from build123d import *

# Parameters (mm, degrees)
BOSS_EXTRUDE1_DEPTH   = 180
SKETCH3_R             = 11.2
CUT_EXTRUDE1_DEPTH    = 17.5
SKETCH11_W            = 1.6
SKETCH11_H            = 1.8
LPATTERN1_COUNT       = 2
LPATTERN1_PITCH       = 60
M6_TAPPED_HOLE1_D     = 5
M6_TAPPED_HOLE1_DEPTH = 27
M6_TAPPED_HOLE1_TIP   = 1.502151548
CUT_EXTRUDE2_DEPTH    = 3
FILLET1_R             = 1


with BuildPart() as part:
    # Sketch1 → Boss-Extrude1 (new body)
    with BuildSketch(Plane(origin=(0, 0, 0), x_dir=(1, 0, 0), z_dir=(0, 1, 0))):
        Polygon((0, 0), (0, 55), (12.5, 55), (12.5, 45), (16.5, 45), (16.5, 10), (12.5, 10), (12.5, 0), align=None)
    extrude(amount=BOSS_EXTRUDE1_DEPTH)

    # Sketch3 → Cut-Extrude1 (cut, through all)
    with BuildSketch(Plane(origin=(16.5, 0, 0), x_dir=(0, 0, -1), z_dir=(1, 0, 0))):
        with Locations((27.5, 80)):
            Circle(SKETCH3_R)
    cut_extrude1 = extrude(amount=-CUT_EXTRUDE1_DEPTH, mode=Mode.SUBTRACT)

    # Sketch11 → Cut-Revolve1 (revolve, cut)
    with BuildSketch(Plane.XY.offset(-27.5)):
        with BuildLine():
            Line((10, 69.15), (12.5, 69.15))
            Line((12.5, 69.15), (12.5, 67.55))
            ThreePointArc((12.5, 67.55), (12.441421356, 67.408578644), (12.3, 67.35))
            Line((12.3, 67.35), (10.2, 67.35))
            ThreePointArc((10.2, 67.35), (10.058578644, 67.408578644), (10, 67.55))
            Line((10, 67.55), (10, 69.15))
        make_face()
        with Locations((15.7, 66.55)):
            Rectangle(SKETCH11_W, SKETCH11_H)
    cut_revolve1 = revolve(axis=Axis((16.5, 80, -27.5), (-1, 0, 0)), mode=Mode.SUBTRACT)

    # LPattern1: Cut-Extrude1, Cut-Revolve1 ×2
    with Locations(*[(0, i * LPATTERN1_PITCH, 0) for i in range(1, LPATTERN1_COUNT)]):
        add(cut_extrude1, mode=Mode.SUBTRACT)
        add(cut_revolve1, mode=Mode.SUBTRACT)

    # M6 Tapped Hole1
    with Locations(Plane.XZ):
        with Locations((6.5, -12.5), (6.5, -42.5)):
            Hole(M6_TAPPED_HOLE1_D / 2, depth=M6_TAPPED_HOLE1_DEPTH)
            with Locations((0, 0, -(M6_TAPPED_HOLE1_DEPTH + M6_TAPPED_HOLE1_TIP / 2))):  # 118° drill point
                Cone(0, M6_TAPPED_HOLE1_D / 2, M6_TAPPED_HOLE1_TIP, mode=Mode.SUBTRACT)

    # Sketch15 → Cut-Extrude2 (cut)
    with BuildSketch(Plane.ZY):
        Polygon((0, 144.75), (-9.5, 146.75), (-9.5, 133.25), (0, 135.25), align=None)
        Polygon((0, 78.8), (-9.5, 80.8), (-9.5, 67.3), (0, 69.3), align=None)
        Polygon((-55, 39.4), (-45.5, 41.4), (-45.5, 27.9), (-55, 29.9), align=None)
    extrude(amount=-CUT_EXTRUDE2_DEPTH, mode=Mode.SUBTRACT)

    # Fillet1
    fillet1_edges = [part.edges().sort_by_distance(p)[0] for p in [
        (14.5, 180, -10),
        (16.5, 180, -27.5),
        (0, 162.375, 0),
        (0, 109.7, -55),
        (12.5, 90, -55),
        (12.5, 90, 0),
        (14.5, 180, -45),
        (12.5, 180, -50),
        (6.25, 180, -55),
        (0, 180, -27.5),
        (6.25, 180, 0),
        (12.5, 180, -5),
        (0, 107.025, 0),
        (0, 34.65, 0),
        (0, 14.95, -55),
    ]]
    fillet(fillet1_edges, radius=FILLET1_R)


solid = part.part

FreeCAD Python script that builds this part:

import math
import FreeCAD as App
import Part
import Sketcher
from FreeCAD import Vector
Q = App.Units.Quantity


def edges_at(feature, points):
    """Names of the edges that pass closest to the given points."""
    edges = feature.Shape.Edges
    near = lambda p: min(range(len(edges)), key=lambda i: edges[i].distToShape(Part.Vertex(*p))[0])
    return sorted({f"Edge{near(p) + 1}" for p in points})

doc = App.newDocument("Part")
body = doc.addObject("PartDesign::Body", "Body")

sketch1 = body.newObject("Sketcher::SketchObject", "Sketch")
sketch1.AttachmentSupport = (doc.getObject("XZ_Plane"), [""])
sketch1.MapMode = "FlatFace"
sketch1.addGeometry(Part.LineSegment(Vector(0, -55, 0), Vector(0, 0, 0)), False)
sketch1.addGeometry(Part.LineSegment(Vector(0, 0, 0), Vector(12.5, 0, 0)), False)
sketch1.addGeometry(Part.LineSegment(Vector(12.5, 0, 0), Vector(12.5, -10, 0)), False)
sketch1.addGeometry(Part.LineSegment(Vector(12.5, -10, 0), Vector(16.5, -10, 0)), False)
sketch1.addGeometry(Part.LineSegment(Vector(16.5, -10, 0), Vector(16.5, -45, 0)), False)
sketch1.addGeometry(Part.LineSegment(Vector(16.5, -45, 0), Vector(12.5, -45, 0)), False)
sketch1.addGeometry(Part.LineSegment(Vector(12.5, -45, 0), Vector(12.5, -55, 0)), False)
sketch1.addGeometry(Part.LineSegment(Vector(12.5, -55, 0), Vector(0, -55, 0)), False)
sketch1.addConstraint(Sketcher.Constraint("Coincident", 0, 2, 1, 1))
sketch1.addConstraint(Sketcher.Constraint("Coincident", 1, 2, 2, 1))
sketch1.addConstraint(Sketcher.Constraint("Coincident", 2, 2, 3, 1))
sketch1.addConstraint(Sketcher.Constraint("Coincident", 3, 2, 4, 1))
sketch1.addConstraint(Sketcher.Constraint("Coincident", 4, 2, 5, 1))
sketch1.addConstraint(Sketcher.Constraint("Coincident", 5, 2, 6, 1))
sketch1.addConstraint(Sketcher.Constraint("Coincident", 6, 2, 7, 1))
sketch1.addConstraint(Sketcher.Constraint("Coincident", 7, 2, 0, 1))
sketch1.addConstraint(Sketcher.Constraint("Vertical", 0))
sketch1.addConstraint(Sketcher.Constraint("Horizontal", 1))
sketch1.addConstraint(Sketcher.Constraint("Vertical", 2))
sketch1.addConstraint(Sketcher.Constraint("Horizontal", 3))
sketch1.addConstraint(Sketcher.Constraint("Vertical", 4))
sketch1.addConstraint(Sketcher.Constraint("Horizontal", 5))
sketch1.addConstraint(Sketcher.Constraint("Vertical", 6))
sketch1.addConstraint(Sketcher.Constraint("Horizontal", 7))
sketch1.addConstraint(Sketcher.Constraint("Coincident", 0, 2, -1, 1))
sketch1.addConstraint(Sketcher.Constraint("Vertical", 2, 2, 5, 2))
sketch1.addConstraint(Sketcher.Constraint("Equal", 2, 6))
sketch1.addConstraint(Sketcher.Constraint("DistanceX", 3, 1, 3, 2, Q("4 mm")))
sketch1.addConstraint(Sketcher.Constraint("DistanceY", 0, 1, 0, 2, Q("55 mm")))
sketch1.addConstraint(Sketcher.Constraint("DistanceY", 2, 2, 2, 1, Q("10 mm")))
sketch1.addConstraint(Sketcher.Constraint("DistanceX", 1, 1, 1, 2, Q("12.5 mm")))
pad1 = body.newObject("PartDesign::Pad", "Pad")
pad1.Profile = sketch1
pad1.Length = 180
pad1.Reversed = True

sketch2 = body.newObject("Sketcher::SketchObject", "Sketch001")
sketch2.AttachmentSupport = (doc.getObject("YZ_Plane"), [""])
sketch2.MapMode = "FlatFace"
sketch2.AttachmentOffset = App.Placement(Vector(0, 0, 16.5), App.Rotation())
sketch2.addGeometry(Part.Circle(Vector(80, -27.5, 0), Vector(0, 0, 1), 11.2), False)
sketch2.addConstraint(Sketcher.Constraint("Diameter", 0, Q("22.4 mm")))
sketch2.addConstraint(Sketcher.Constraint("DistanceX", -1, 1, 0, 3, Q("80 mm")))
sketch2.addConstraint(Sketcher.Constraint("DistanceY", 0, 3, -1, 1, Q("27.5 mm")))
pocket1 = body.newObject("PartDesign::Pocket", "Pocket")
pocket1.Profile = sketch2
pocket1.Type = "ThroughAll"

sketch3 = body.newObject("Sketcher::SketchObject", "Sketch002")
sketch3.AttachmentSupport = (doc.getObject("XY_Plane"), [""])
sketch3.MapMode = "FlatFace"
sketch3.AttachmentOffset = App.Placement(Vector(0, 0, -27.5), App.Rotation())
sketch3.addGeometry(Part.LineSegment(Vector(12.5, 69.15, 0), Vector(10, 69.15, 0)), False)
sketch3.addGeometry(Part.LineSegment(Vector(10, 69.15, 0), Vector(10, 67.55, 0)), False)
sketch3.addGeometry(Part.ArcOfCircle(Part.Circle(Vector(10.2, 67.55, 0), Vector(0, 0, 1), 0.2), math.radians(-180), math.radians(-90)), False)
sketch3.addGeometry(Part.LineSegment(Vector(10.2, 67.35, 0), Vector(12.3, 67.35, 0)), False)
sketch3.addGeometry(Part.ArcOfCircle(Part.Circle(Vector(12.3, 67.55, 0), Vector(0, 0, 1), 0.2), math.radians(-90), math.radians(0)), False)
sketch3.addGeometry(Part.LineSegment(Vector(12.5, 67.55, 0), Vector(12.5, 69.15, 0)), False)
sketch3.addGeometry(Part.LineSegment(Vector(14.9, 67.45, 0), Vector(14.9, 65.65, 0)), False)
sketch3.addGeometry(Part.LineSegment(Vector(14.9, 65.65, 0), Vector(16.5, 65.65, 0)), False)
sketch3.addGeometry(Part.LineSegment(Vector(16.5, 65.65, 0), Vector(16.5, 67.45, 0)), False)
sketch3.addGeometry(Part.LineSegment(Vector(16.5, 67.45, 0), Vector(14.9, 67.45, 0)), False)
sketch3.addGeometry(Part.LineSegment(Vector(16.5, 80, 0), Vector(10, 80, 0)), True)
sketch3.addConstraint(Sketcher.Constraint("Coincident", 0, 2, 1, 1))
sketch3.addConstraint(Sketcher.Constraint("Tangent", 1, 2, 2, 1))
sketch3.addConstraint(Sketcher.Constraint("Tangent", 2, 2, 3, 1))
sketch3.addConstraint(Sketcher.Constraint("Tangent", 3, 2, 4, 1))
sketch3.addConstraint(Sketcher.Constraint("Tangent", 4, 2, 5, 1))
sketch3.addConstraint(Sketcher.Constraint("Coincident", 5, 2, 0, 1))
sketch3.addConstraint(Sketcher.Constraint("Coincident", 6, 2, 7, 1))
sketch3.addConstraint(Sketcher.Constraint("Coincident", 7, 2, 8, 1))
sketch3.addConstraint(Sketcher.Constraint("Coincident", 8, 2, 9, 1))
sketch3.addConstraint(Sketcher.Constraint("Coincident", 9, 2, 6, 1))
sketch3.addConstraint(Sketcher.Constraint("Horizontal", 0))
sketch3.addConstraint(Sketcher.Constraint("Vertical", 1))
sketch3.addConstraint(Sketcher.Constraint("Horizontal", 3))
sketch3.addConstraint(Sketcher.Constraint("Vertical", 5))
sketch3.addConstraint(Sketcher.Constraint("Vertical", 6))
sketch3.addConstraint(Sketcher.Constraint("Horizontal", 7))
sketch3.addConstraint(Sketcher.Constraint("Vertical", 8))
sketch3.addConstraint(Sketcher.Constraint("Horizontal", 9))
sketch3.addConstraint(Sketcher.Constraint("Horizontal", 10))
sketch3.addConstraint(Sketcher.Constraint("Equal", 2, 4))
sketch3.addConstraint(Sketcher.Constraint("Vertical", 8, 2, 10, 1))
sketch3.addConstraint(Sketcher.Constraint("Vertical", 1, 2, 10, 2))
sketch3.addConstraint(Sketcher.Constraint("Equal", 9, 1))
sketch3.addConstraint(Sketcher.Constraint("Radius", 2, Q("0.2 mm")))
sketch3.addConstraint(Sketcher.Constraint("DistanceX", 0, 2, 0, 1, Q("2.5 mm")))
sketch3.addConstraint(Sketcher.Constraint("DistanceX", 7, 1, 7, 2, Q("1.6 mm")))
sketch3.addConstraint(Sketcher.Constraint("DistanceX", 10, 2, 10, 1, Q("6.5 mm")))
sketch3.addConstraint(Sketcher.Constraint("DistanceY", 6, 2, 6, 1, Q("1.8 mm")))
sketch3.addConstraint(Sketcher.Constraint("DistanceX", -1, 1, 0, 2, Q("10 mm")))
sketch3.addConstraint(Sketcher.Constraint("DistanceY", -1, 1, 10, 1, Q("80 mm")))
sketch3.addConstraint(Sketcher.Constraint("DistanceY", 6, 2, 4, 2, Q("1.9 mm")))
sketch3.addConstraint(Sketcher.Constraint("DistanceY", -1, 1, 2, 3, Q("67.55 mm")))
groove = body.newObject("PartDesign::Groove", "Groove")
groove.Profile = sketch3
groove.ReferenceAxis = (sketch3, ["Axis0"])
groove.Angle = 360
doc.recompute()

linearpattern = body.newObject("PartDesign::LinearPattern", "LinearPattern")
linearpattern.Originals = [pocket1, groove]
linearpattern.Direction = (doc.getObject("Y_Axis"), [""])
linearpattern.Mode = "offset"
linearpattern.Offset = 60
linearpattern.Occurrences = 2
body.Tip = linearpattern

sketch4 = body.newObject("Sketcher::SketchObject", "Sketch003")
sketch4.AttachmentSupport = (doc.getObject("XZ_Plane"), [""])
sketch4.MapMode = "FlatFace"
sketch4.addGeometry(Part.Circle(Vector(6.5, -12.5, 0), Vector(0, 0, 1), 2.5), False)
sketch4.addGeometry(Part.Circle(Vector(6.5, -42.5, 0), Vector(0, 0, 1), 2.5), False)
sketch4.addConstraint(Sketcher.Constraint("Equal", 0, 1))
sketch4.addConstraint(Sketcher.Constraint("Vertical", 0, 3, 1, 3))
sketch4.addConstraint(Sketcher.Constraint("Diameter", 0, Q("5 mm")))
sketch4.addConstraint(Sketcher.Constraint("DistanceY", 1, 3, 0, 3, Q("30 mm")))
sketch4.addConstraint(Sketcher.Constraint("DistanceX", -1, 1, 0, 3, Q("6.5 mm")))
sketch4.addConstraint(Sketcher.Constraint("DistanceY", 0, 3, -1, 1, Q("12.5 mm")))
doc.recompute()
hole = body.newObject("PartDesign::Hole", "Hole")
hole.Profile = sketch4
hole.ThreadType = "None"
hole.Diameter = 5
hole.DepthType = "Dimension"
hole.Depth = 27
hole.DrillPoint = "Angled"
hole.DrillPointAngle = 118

sketch5 = body.newObject("Sketcher::SketchObject", "Sketch004")
sketch5.AttachmentSupport = (doc.getObject("YZ_Plane"), [""])
sketch5.MapMode = "FlatFace"
sketch5.addGeometry(Part.LineSegment(Vector(144.75, 0, 0), Vector(146.75, -9.5, 0)), False)
sketch5.addGeometry(Part.LineSegment(Vector(146.75, -9.5, 0), Vector(133.25, -9.5, 0)), False)
sketch5.addGeometry(Part.LineSegment(Vector(133.25, -9.5, 0), Vector(135.25, 0, 0)), False)
sketch5.addGeometry(Part.LineSegment(Vector(135.25, 0, 0), Vector(144.75, 0, 0)), False)
sketch5.addGeometry(Part.LineSegment(Vector(78.8, 0, 0), Vector(80.8, -9.5, 0)), False)
sketch5.addGeometry(Part.LineSegment(Vector(80.8, -9.5, 0), Vector(67.3, -9.5, 0)), False)
sketch5.addGeometry(Part.LineSegment(Vector(67.3, -9.5, 0), Vector(69.3, 0, 0)), False)
sketch5.addGeometry(Part.LineSegment(Vector(69.3, 0, 0), Vector(78.8, 0, 0)), False)
sketch5.addGeometry(Part.LineSegment(Vector(41.4, -45.5, 0), Vector(39.4, -55, 0)), False)
sketch5.addGeometry(Part.LineSegment(Vector(39.4, -55, 0), Vector(29.9, -55, 0)), False)
sketch5.addGeometry(Part.LineSegment(Vector(29.9, -55, 0), Vector(27.9, -45.5, 0)), False)
sketch5.addGeometry(Part.LineSegment(Vector(27.9, -45.5, 0), Vector(41.4, -45.5, 0)), False)
sketch5.addConstraint(Sketcher.Constraint("Coincident", 0, 2, 1, 1))
sketch5.addConstraint(Sketcher.Constraint("Coincident", 1, 2, 2, 1))
sketch5.addConstraint(Sketcher.Constraint("Coincident", 2, 2, 3, 1))
sketch5.addConstraint(Sketcher.Constraint("Coincident", 3, 2, 0, 1))
sketch5.addConstraint(Sketcher.Constraint("Coincident", 4, 2, 5, 1))
sketch5.addConstraint(Sketcher.Constraint("Coincident", 5, 2, 6, 1))
sketch5.addConstraint(Sketcher.Constraint("Coincident", 6, 2, 7, 1))
sketch5.addConstraint(Sketcher.Constraint("Coincident", 7, 2, 4, 1))
sketch5.addConstraint(Sketcher.Constraint("Coincident", 8, 2, 9, 1))
sketch5.addConstraint(Sketcher.Constraint("Coincident", 9, 2, 10, 1))
sketch5.addConstraint(Sketcher.Constraint("Coincident", 10, 2, 11, 1))
sketch5.addConstraint(Sketcher.Constraint("Coincident", 11, 2, 8, 1))
sketch5.addConstraint(Sketcher.Constraint("Horizontal", 1))
sketch5.addConstraint(Sketcher.Constraint("Horizontal", 3))
sketch5.addConstraint(Sketcher.Constraint("Horizontal", 5))
sketch5.addConstraint(Sketcher.Constraint("Horizontal", 7))
sketch5.addConstraint(Sketcher.Constraint("Horizontal", 9))
sketch5.addConstraint(Sketcher.Constraint("Horizontal", 11))
sketch5.addConstraint(Sketcher.Constraint("PointOnObject", 2, 2, -1))
sketch5.addConstraint(Sketcher.Constraint("PointOnObject", 6, 2, -1))
sketch5.addConstraint(Sketcher.Constraint("Parallel", 0, 4))
sketch5.addConstraint(Sketcher.Constraint("Parallel", 2, 6))
sketch5.addConstraint(Sketcher.Constraint("Parallel", 6, 8))
sketch5.addConstraint(Sketcher.Constraint("Parallel", 4, 10))
sketch5.addConstraint(Sketcher.Constraint("Horizontal", 1, 2, 4, 2))
sketch5.addConstraint(Sketcher.Constraint("Equal", 1, 5))
sketch5.addConstraint(Sketcher.Constraint("Equal", 7, 9))
sketch5.addConstraint(Sketcher.Constraint("Equal", 5, 11))
sketch5.addConstraint(Sketcher.Constraint("Equal", 0, 2))
sketch5.addConstraint(Sketcher.Constraint("DistanceX", 1, 2, 1, 1, Q("13.5 mm")))
sketch5.addConstraint(Sketcher.Constraint("DistanceX", 3, 1, 3, 2, Q("9.5 mm")))
sketch5.addConstraint(Sketcher.Constraint("DistanceY", 8, 2, -1, 1, Q("55 mm")))
sketch5.addConstraint(Sketcher.Constraint("DistanceY", 10, 2, 5, 2, Q("36 mm")))
sketch5.addConstraint(Sketcher.Constraint("DistanceX", -1, 1, 4, 2, Q("80.8 mm")))
sketch5.addConstraint(Sketcher.Constraint("DistanceX", -1, 1, 8, 2, Q("39.4 mm")))
sketch5.addConstraint(Sketcher.Constraint("DistanceX", -1, 1, 0, 2, Q("146.75 mm")))
pocket2 = body.newObject("PartDesign::Pocket", "Pocket001")
pocket2.Profile = sketch5
pocket2.Length = 3
pocket2.Reversed = True
doc.recompute()

fillet = body.newObject("PartDesign::Fillet", "Fillet")
fillet.Base = (pocket2, edges_at(pocket2, [
    (14.5, 180, -10),
    (16.5, 180, -27.5),
    (0, 162.375, 0),
    (0, 109.7, -55),
    (12.5, 90, -55),
    (12.5, 90, 0),
    (14.5, 180, -45),
    (12.5, 180, -50),
    (6.25, 180, -55),
    (0, 180, -27.5),
    (6.25, 180, 0),
    (12.5, 180, -5),
    (0, 107.025, 0),
    (0, 34.65, 0),
    (0, 14.95, -55),
]))
fillet.Radius = 1

doc.recompute()
